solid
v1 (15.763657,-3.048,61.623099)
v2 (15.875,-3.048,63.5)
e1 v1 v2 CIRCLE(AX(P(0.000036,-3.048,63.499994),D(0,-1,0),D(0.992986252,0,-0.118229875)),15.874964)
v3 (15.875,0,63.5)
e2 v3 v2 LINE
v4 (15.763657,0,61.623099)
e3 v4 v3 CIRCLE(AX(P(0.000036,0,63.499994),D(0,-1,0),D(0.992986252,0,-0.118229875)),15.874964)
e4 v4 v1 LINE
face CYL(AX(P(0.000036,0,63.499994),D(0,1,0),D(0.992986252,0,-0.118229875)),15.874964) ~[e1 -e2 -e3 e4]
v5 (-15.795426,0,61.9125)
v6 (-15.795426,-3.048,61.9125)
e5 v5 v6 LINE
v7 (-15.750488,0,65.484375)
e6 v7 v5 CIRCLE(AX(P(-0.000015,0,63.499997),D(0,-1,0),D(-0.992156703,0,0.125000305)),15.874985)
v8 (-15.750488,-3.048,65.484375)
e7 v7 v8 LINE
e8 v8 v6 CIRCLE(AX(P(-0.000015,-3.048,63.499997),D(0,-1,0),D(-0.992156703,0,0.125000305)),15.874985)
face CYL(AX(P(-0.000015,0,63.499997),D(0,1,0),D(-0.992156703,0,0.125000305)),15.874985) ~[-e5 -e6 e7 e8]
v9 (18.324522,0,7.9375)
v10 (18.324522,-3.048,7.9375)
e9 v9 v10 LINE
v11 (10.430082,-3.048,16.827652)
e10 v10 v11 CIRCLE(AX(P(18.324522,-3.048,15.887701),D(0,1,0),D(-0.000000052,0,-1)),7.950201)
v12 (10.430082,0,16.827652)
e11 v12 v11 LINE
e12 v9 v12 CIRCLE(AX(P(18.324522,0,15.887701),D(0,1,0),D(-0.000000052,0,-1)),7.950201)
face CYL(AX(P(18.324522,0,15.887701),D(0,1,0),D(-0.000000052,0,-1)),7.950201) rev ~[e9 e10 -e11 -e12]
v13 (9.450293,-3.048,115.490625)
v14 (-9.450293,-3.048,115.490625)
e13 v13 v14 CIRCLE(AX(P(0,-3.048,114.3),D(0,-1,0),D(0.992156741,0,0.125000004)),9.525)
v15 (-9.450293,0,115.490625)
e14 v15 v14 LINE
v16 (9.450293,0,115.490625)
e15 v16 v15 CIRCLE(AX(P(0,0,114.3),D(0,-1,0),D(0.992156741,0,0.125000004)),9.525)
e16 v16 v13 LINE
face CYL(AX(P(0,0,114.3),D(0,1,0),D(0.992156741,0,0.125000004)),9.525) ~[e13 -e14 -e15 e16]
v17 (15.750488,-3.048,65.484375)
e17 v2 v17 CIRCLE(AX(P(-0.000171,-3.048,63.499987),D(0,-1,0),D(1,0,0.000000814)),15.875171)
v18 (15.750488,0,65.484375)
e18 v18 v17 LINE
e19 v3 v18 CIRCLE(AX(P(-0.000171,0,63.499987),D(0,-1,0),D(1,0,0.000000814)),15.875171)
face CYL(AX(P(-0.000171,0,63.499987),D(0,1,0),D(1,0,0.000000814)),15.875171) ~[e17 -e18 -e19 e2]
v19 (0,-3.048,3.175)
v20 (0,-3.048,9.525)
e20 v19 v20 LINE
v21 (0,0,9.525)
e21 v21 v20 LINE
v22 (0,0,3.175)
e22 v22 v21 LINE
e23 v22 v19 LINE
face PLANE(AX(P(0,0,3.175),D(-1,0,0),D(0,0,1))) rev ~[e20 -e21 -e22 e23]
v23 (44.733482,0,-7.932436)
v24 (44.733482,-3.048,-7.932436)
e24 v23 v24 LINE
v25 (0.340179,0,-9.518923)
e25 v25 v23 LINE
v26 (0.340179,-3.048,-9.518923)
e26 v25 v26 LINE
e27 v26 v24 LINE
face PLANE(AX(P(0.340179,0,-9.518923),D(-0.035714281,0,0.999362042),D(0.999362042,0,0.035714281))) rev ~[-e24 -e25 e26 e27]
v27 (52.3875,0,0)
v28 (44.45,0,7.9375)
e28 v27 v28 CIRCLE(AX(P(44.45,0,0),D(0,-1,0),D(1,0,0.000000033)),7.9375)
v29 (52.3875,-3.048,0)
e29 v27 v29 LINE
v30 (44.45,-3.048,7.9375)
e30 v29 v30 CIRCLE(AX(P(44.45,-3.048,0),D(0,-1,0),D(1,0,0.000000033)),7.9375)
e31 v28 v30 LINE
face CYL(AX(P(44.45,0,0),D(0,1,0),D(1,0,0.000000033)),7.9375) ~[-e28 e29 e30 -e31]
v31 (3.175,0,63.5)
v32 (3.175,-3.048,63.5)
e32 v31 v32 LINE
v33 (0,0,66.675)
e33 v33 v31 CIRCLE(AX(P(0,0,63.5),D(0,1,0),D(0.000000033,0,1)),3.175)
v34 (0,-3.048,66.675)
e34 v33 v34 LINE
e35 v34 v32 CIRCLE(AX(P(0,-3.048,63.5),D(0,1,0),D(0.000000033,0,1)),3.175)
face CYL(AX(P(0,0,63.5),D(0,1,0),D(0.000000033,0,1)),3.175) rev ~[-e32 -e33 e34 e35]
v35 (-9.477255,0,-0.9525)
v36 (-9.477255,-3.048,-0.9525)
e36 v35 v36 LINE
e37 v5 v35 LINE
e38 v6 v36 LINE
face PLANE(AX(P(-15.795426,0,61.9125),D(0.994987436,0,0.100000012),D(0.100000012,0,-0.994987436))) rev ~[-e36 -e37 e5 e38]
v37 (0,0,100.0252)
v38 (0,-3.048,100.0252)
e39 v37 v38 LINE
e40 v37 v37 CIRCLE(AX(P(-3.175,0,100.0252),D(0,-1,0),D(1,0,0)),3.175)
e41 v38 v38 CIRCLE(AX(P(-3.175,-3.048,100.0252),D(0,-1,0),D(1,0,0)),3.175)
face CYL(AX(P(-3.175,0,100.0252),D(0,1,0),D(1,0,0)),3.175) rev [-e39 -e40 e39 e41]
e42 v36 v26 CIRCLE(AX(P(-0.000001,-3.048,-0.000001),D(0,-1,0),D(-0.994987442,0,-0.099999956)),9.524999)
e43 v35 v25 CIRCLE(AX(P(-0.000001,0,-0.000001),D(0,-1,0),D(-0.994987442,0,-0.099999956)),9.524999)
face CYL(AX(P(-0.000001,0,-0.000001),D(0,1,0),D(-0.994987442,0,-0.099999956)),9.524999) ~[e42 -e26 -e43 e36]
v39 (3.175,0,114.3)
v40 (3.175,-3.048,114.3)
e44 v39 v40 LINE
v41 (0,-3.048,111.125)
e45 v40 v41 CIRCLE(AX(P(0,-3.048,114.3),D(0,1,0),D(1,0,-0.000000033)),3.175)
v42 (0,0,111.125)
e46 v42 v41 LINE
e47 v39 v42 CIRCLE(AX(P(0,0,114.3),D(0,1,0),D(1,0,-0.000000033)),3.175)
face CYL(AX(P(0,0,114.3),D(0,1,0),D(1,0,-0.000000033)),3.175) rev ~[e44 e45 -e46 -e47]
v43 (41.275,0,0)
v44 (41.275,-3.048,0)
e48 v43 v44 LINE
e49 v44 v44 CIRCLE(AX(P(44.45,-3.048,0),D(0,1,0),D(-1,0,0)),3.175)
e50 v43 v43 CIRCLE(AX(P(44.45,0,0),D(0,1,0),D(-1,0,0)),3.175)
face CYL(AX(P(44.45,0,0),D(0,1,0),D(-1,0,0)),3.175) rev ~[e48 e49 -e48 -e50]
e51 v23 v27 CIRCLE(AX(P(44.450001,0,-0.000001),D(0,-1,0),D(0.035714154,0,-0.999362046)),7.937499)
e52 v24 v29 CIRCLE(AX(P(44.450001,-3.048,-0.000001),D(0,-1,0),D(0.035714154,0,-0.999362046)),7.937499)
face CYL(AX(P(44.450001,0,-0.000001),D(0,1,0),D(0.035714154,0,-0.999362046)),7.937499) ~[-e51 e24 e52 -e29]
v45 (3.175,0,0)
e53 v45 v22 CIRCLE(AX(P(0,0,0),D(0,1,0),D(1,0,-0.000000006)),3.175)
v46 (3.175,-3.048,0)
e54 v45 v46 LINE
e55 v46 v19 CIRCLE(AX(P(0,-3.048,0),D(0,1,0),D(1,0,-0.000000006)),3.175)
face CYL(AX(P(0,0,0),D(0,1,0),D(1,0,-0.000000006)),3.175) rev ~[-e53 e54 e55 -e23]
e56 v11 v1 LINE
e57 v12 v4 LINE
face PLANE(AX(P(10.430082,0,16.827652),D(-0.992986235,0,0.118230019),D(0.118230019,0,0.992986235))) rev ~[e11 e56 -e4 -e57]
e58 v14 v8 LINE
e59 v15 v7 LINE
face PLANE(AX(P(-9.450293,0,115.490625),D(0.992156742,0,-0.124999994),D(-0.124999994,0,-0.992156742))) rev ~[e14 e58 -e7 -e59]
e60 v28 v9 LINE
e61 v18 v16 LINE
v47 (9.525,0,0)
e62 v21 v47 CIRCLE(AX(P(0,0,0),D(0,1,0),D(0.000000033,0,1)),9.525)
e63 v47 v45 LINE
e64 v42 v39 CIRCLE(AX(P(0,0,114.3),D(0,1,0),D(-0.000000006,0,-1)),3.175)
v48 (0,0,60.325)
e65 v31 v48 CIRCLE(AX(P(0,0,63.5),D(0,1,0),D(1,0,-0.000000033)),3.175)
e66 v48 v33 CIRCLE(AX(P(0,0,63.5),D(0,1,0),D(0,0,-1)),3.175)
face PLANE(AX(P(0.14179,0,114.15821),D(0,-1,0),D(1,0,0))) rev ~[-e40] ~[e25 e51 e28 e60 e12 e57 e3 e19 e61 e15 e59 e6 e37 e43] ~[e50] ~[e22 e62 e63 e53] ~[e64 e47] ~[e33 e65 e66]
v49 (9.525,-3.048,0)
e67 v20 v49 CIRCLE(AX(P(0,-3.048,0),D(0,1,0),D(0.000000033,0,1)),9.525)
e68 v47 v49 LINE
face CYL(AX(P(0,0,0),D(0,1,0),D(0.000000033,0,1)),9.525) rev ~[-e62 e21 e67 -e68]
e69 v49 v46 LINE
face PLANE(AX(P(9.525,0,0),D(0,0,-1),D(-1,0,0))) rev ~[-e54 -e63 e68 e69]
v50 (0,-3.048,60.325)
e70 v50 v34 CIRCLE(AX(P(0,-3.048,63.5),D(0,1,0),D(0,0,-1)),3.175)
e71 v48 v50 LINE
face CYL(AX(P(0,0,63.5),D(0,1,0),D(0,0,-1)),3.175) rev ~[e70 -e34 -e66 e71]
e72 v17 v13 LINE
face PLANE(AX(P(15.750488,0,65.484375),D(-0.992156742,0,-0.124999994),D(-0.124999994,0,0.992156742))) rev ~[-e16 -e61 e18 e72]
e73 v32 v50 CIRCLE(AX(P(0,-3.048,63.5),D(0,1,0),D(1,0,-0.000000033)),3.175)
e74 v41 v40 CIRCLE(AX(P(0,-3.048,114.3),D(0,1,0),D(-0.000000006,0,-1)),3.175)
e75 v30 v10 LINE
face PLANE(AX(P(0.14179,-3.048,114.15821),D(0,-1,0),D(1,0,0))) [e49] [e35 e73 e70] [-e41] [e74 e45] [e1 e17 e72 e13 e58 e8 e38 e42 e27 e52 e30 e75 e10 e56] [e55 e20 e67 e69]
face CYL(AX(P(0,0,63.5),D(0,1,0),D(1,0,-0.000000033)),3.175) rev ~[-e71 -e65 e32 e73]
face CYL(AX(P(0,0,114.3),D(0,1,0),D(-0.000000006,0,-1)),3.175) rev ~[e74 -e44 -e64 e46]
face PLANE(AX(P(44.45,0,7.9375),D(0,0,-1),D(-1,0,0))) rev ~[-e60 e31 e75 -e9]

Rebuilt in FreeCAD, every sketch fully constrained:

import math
import FreeCAD as App
import Part
import Sketcher

V = App.Vector
Q = App.Units.Quantity

doc = App.newDocument("Part")
body = doc.addObject("PartDesign::Body", "Body")

# Sketch on XZ plane
sketch1 = body.newObject("Sketcher::SketchObject", "Sketch")
sketch1.AttachmentSupport = (doc.getObject("XZ_Plane"), [""])
sketch1.MapMode = "FlatFace"
sketch1.addGeometry([
    Part.ArcOfCircle(Part.Circle(V(-0.000001, -0.000001, 0), V(0, 0, 1), 9.524999), math.radians(-174.260832), math.radians(-87.953281)),  # 0
    Part.LineSegment(V(0.340179, -9.518923, 0), V(44.733482, -7.932436, 0)),  # 1
    Part.ArcOfCircle(Part.Circle(V(44.450001, -0.000001, 0), V(0, 0, 1), 7.937499), math.radians(-87.953294), math.radians(0.000005)),  # 2
    Part.ArcOfCircle(Part.Circle(V(44.45, 0, 0), V(0, 0, 1), 7.9375), math.radians(0.000002), math.radians(89.999998)),  # 3
    Part.LineSegment(V(44.45, 7.9375, 0), V(18.324522, 7.9375, 0)),  # 4
    Part.ArcOfCircle(Part.Circle(V(18.324522, 15.887701, 0), V(0, 0, 1), 7.950201), math.radians(173.210048), math.radians(269.999997)),  # 5
    Part.LineSegment(V(10.430082, 16.827652, 0), V(15.763657, 61.623099, 0)),  # 6
    Part.ArcOfCircle(Part.Circle(V(0.000036, 63.499994, 0), V(0, 0, 1), 15.874964), math.radians(-6.789955), math.radians(0.000021)),  # 7
    Part.ArcOfCircle(Part.Circle(V(-0.000171, 63.499987, 0), V(0, 0, 1), 15.875171), math.radians(0.000047), math.radians(7.180725)),  # 8
    Part.LineSegment(V(15.750488, 65.484375, 0), V(9.450293, 115.490625, 0)),  # 9
    Part.ArcOfCircle(Part.Circle(V(0, 114.3, 0), V(0, 0, 1), 9.525), math.radians(7.180756), math.radians(172.819244)),  # 10
    Part.LineSegment(V(-9.450293, 115.490625, 0), V(-15.750488, 65.484375, 0)),  # 11
    Part.ArcOfCircle(Part.Circle(V(-0.000015, 63.499997, 0), V(0, 0, 1), 15.874985), math.radians(172.819227), math.radians(185.739165)),  # 12
    Part.LineSegment(V(-15.795426, 61.9125, 0), V(-9.477255, -0.9525, 0)),  # 13
    Part.ArcOfCircle(Part.Circle(V(0, 0, 0), V(0, 0, 1), 9.525), math.radians(0.000002), math.radians(89.999998)),  # 14
    Part.LineSegment(V(9.525, 0, 0), V(3.175, 0, 0)),  # 15
    Part.ArcOfCircle(Part.Circle(V(0, 0, 0), V(0, 0, 1), 3.175), math.radians(90), math.radians(360)),  # 16
    Part.LineSegment(V(0, 3.175, 0), V(0, 9.525, 0)),  # 17
    Part.Circle(V(44.45, 0, 0), V(0, 0, 1), 3.175),  # 18
    Part.ArcOfCircle(Part.Circle(V(0, 63.5, 0), V(0, 0, 1), 3.175), math.radians(0.000002), math.radians(89.999998)),  # 19
    Part.ArcOfCircle(Part.Circle(V(0, 63.5, 0), V(0, 0, 1), 3.175), math.radians(-89.999998), math.radians(-0.000002)),  # 20
    Part.ArcOfCircle(Part.Circle(V(0, 63.5, 0), V(0, 0, 1), 3.175), math.radians(90), math.radians(270)),  # 21
    Part.Circle(V(-3.175, 100.0252, 0), V(0, 0, 1), 3.175),  # 22
    Part.ArcOfCircle(Part.Circle(V(0, 114.3, 0), V(0, 0, 1), 3.175), math.radians(0), math.radians(270)),  # 23
    Part.ArcOfCircle(Part.Circle(V(0, 114.3, 0), V(0, 0, 1), 3.175), math.radians(-89.999998), math.radians(-0.000002)),  # 24
], False)
sketch1.addConstraint([
    Sketcher.Constraint("Coincident", 0, 2, 1, 1),
    Sketcher.Constraint("Coincident", 1, 2, 2, 1),
    Sketcher.Constraint("Coincident", 2, 2, 3, 1),
    Sketcher.Constraint("Coincident", 3, 2, 4, 1),
    Sketcher.Constraint("Coincident", 4, 2, 5, 2),
    Sketcher.Constraint("Coincident", 5, 1, 6, 1),
    Sketcher.Constraint("Coincident", 6, 2, 7, 1),
    Sketcher.Constraint("Coincident", 7, 2, 8, 1),
    Sketcher.Constraint("Coincident", 8, 2, 9, 1),
    Sketcher.Constraint("Coincident", 9, 2, 10, 1),
    Sketcher.Constraint("Coincident", 10, 2, 11, 1),
    Sketcher.Constraint("Coincident", 11, 2, 12, 1),
    Sketcher.Constraint("Coincident", 12, 2, 13, 1),
    Sketcher.Constraint("Coincident", 13, 2, 0, 1),
    Sketcher.Constraint("Coincident", 14, 1, 15, 1),
    Sketcher.Constraint("Coincident", 15, 2, 16, 2),
    Sketcher.Constraint("Coincident", 16, 1, 17, 1),
    Sketcher.Constraint("Coincident", 17, 2, 14, 2),
    Sketcher.Constraint("Coincident", 19, 1, 20, 2),
    Sketcher.Constraint("Coincident", 20, 1, 21, 2),
    Sketcher.Constraint("Coincident", 21, 1, 19, 2),
    Sketcher.Constraint("Coincident", 23, 1, 24, 2),
    Sketcher.Constraint("Coincident", 24, 1, 23, 2),
    Sketcher.Constraint("Horizontal", 4),
    Sketcher.Constraint("Horizontal", 15),
    Sketcher.Constraint("Vertical", 17),
    Sketcher.Constraint("Coincident", 0, 3, -1, 1),
    Sketcher.Constraint("Coincident", 14, 3, -1, 1),
    Sketcher.Constraint("Coincident", 16, 3, -1, 1),
    Sketcher.Constraint("Coincident", 3, 3, 2, 3),
    Sketcher.Constraint("Coincident", 18, 3, 2, 3),
    Sketcher.Constraint("Coincident", 20, 3, 19, 3),
    Sketcher.Constraint("Coincident", 23, 3, 10, 3),
    Sketcher.Constraint("PointOnObject", 2, 3, -1),
    Sketcher.Constraint("PointOnObject", 10, 3, -2),
    Sketcher.Constraint("PointOnObject", 19, 3, -2),
    Sketcher.Constraint("PointOnObject", 21, 3, -2),
    Sketcher.Constraint("PointOnObject", 24, 3, -2),
    Sketcher.Constraint("PointOnObject", 2, 2, -1),
    Sketcher.Constraint("PointOnObject", 14, 1, -1),
    Sketcher.Constraint("PointOnObject", 16, 1, -2),
    Sketcher.Constraint("PointOnObject", 20, 1, -2),
    Sketcher.Constraint("PointOnObject", 21, 1, -2),
    Sketcher.Constraint("PointOnObject", 24, 1, -2),
    Sketcher.Constraint("Diameter", 18, Q("0.25 in")),
    Sketcher.Constraint("Diameter", 22, Q("0.25 in")),
    Sketcher.Constraint("Radius", 0, Q("0.375 in")),
    Sketcher.Constraint("Radius", 2, Q("0.3125 in")),
    Sketcher.Constraint("Radius", 5, Q("0.313 in")),
    Sketcher.Constraint("Radius", 10, Q("0.375 in")),
    Sketcher.Constraint("Radius", 14, Q("0.375 in")),
    Sketcher.Constraint("Radius", 16, Q("0.125 in")),
    Sketcher.Constraint("Radius", 19, Q("0.125 in")),
    Sketcher.Constraint("Radius", 23, Q("0.125 in")),
    Sketcher.Constraint("DistanceY", 12, 3, 10, 3, Q("2.0000001 in")),
    Sketcher.Constraint("DistanceY", 19, 3, 10, 3, Q("2 in")),
    Sketcher.Constraint("DistanceY", -1, 1, 10, 3, Q("4.5 in")),
    Sketcher.Constraint("DistanceY", -1, 1, 7, 2, Q("2.5 in")),
    Sketcher.Constraint("DistanceY", -1, 1, 19, 1, Q("2.5 in")),
    Sketcher.Constraint("DistanceY", -1, 1, 23, 1, Q("4.5 in")),
    Sketcher.Constraint("DistanceX", -1, 1, 2, 3, Q("1.75 in")),
    Sketcher.Constraint("DistanceX", -1, 1, 3, 2, Q("1.75 in")),
    Sketcher.Constraint("DistanceX", 22, 3, -1, 1, Q("0.125 in")),
    Sketcher.Constraint("DistanceY", -1, 1, 22, 3, Q("3.938 in")),
    Sketcher.Constraint("DistanceX", -1, 1, 7, 2, Q("0.625 in")),
    Sketcher.Constraint("DistanceY", -1, 1, 8, 2, Q("2.578125 in")),
    Sketcher.Constraint("DistanceY", -1, 1, 9, 2, Q("4.546875 in")),
    Sketcher.Constraint("DistanceY", -1, 1, 10, 2, Q("4.546875 in")),
    Sketcher.Constraint("DistanceY", -1, 1, 11, 2, Q("2.578125 in")),
    Sketcher.Constraint("DistanceY", -1, 1, 12, 2, Q("2.4375 in")),
    Sketcher.Constraint("Radius", 8, Q("15.875171 mm")),
    Sketcher.Constraint("DistanceY", 13, 2, -1, 1, Q("0.0375 in")),
    Sketcher.Constraint("Radius", 7, Q("15.874964 mm")),
    Sketcher.Constraint("Radius", 12, Q("15.874985 mm")),
    Sketcher.Constraint("DistanceX", 4, 2, 4, 1, Q("26.125478 mm")),
    Sketcher.Constraint("DistanceY", -1, 1, 6, 2, Q("61.623099 mm")),
    Sketcher.Constraint("Distance", 6, Q("45.111851 mm")),
    Sketcher.Constraint("DistanceX", -1, 1, 0, 2, Q("0.340179 mm")),
    Sketcher.Constraint("DistanceX", -1, 1, 5, 1, Q("10.430082 mm")),
    Sketcher.Constraint("DistanceX", -1, 1, 8, 2, Q("15.750488 mm")),
    Sketcher.Constraint("DistanceX", 11, 2, -1, 1, Q("15.750488 mm")),
    Sketcher.Constraint("DistanceX", 2, 3, 1, 2, Q("0.283481 mm")),
    Sketcher.Constraint("DistanceX", 7, 3, 6, 2, Q("15.763621 mm")),
])
pad1 = body.newObject("PartDesign::Pad", "Pad")
pad1.Profile = sketch1
pad1.Length = Q("0.12 in")

doc.recompute()
